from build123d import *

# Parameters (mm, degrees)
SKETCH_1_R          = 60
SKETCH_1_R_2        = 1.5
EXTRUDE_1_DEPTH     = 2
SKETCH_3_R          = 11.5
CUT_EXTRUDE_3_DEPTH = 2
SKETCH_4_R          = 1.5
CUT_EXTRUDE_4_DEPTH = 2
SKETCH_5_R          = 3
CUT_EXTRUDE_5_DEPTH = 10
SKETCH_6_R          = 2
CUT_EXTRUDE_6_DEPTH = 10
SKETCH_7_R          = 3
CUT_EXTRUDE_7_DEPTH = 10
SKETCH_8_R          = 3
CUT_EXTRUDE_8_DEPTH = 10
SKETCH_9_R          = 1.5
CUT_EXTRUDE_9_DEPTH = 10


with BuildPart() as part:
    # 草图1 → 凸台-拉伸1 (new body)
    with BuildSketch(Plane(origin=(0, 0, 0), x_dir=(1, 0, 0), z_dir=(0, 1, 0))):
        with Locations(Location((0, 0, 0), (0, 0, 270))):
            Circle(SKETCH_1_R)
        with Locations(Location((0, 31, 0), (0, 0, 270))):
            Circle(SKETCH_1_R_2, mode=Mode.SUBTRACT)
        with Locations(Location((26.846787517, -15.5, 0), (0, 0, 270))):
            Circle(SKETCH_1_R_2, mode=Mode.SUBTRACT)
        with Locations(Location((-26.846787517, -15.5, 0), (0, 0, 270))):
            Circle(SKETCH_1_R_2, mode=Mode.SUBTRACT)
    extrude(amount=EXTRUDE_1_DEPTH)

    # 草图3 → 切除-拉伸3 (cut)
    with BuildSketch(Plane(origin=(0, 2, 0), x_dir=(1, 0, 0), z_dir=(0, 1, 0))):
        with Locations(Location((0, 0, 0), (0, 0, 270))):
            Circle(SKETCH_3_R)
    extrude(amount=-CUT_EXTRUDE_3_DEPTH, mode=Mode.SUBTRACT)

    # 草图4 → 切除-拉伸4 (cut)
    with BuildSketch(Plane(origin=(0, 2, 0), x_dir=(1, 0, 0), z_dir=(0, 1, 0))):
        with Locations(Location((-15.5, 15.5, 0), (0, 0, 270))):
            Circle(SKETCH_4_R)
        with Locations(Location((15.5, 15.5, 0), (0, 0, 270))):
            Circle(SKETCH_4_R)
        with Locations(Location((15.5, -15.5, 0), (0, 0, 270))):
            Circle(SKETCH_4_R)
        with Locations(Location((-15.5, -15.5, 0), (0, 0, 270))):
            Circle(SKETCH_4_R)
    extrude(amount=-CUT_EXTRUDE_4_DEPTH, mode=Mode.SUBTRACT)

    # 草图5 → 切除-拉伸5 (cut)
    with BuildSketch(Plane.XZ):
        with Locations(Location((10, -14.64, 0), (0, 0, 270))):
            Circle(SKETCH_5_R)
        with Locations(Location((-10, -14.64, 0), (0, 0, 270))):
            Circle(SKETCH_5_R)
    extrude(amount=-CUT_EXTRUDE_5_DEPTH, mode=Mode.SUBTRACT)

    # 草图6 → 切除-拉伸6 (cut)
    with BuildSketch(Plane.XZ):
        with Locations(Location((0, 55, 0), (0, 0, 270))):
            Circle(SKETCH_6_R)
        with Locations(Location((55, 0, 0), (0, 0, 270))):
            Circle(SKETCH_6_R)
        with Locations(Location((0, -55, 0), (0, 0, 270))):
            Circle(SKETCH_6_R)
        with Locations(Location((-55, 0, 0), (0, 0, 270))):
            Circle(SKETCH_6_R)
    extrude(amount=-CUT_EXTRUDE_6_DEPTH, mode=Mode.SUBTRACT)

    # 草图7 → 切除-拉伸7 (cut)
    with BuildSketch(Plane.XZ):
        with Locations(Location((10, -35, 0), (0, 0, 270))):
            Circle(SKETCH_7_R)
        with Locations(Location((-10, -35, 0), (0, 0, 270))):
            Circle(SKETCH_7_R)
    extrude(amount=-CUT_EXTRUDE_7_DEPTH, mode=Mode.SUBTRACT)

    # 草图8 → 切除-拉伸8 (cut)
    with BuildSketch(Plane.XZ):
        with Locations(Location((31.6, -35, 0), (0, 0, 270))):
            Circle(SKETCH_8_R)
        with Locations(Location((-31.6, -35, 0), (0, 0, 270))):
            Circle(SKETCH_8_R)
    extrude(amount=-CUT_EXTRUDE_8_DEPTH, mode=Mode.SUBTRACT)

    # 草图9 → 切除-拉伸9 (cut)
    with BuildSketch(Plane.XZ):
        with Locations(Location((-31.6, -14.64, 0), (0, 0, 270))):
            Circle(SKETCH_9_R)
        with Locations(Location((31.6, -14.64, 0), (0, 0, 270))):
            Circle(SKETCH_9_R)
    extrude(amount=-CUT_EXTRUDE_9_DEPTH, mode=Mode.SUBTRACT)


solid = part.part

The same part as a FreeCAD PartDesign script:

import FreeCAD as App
import Part
import Sketcher

V = App.Vector

doc = App.newDocument("Part")
body = doc.addObject("PartDesign::Body", "Body")

# Sketch on XZ plane
sketch1 = doc.addObject("Sketcher::SketchObject", "Sketch")
body.addObject(sketch1)
sketch1.AttachmentSupport = (doc.XZ_Plane, [""])
sketch1.MapMode = "FlatFace"
sketch1.addGeometry(Part.Circle(V(0, 0, 0), V(0, 0, 1), 60), False)
sketch1.addGeometry(Part.Circle(V(0, -31, 0), V(0, 0, 1), 1.5), False)
sketch1.addGeometry(Part.Circle(V(-26.8, 15.5, 0), V(0, 0, 1), 1.5), False)
sketch1.addGeometry(Part.Circle(V(26.8, 15.5, 0), V(0, 0, 1), 1.5), False)
sketch1.addConstraint(Sketcher.Constraint("Coincident", 0, 3, -1, 1))
sketch1.addConstraint(Sketcher.Constraint("Equal", 1, 2))
sketch1.addConstraint(Sketcher.Constraint("Equal", 2, 3))
sketch1.addConstraint(Sketcher.Constraint("Symmetric", 2, 3, 3, 3, -2))
sketch1.addConstraint(Sketcher.Constraint("PointOnObject", 1, 3, -2))
sketch1.addConstraint(Sketcher.Constraint("Diameter", 0, 120.0))
sketch1.addConstraint(Sketcher.Constraint("Diameter", 1, 3.0))
sketch1.addConstraint(Sketcher.Constraint("DistanceY", 1, 3, -1, 1, 31.0))
sketch1.addConstraint(Sketcher.Constraint("DistanceY", -1, 1, 2, 3, 15.5))
sketch1.addConstraint(Sketcher.Constraint("DistanceX", 2, 3, -1, 1, 26.846788))
pad1 = doc.addObject("PartDesign::Pad", "Pad")
body.addObject(pad1)
pad1.Profile = sketch1
pad1.Length = 2
pad1.Reversed = True

# Sketch on XZ plane
sketch2 = doc.addObject("Sketcher::SketchObject", "Sketch001")
body.addObject(sketch2)
sketch2.AttachmentSupport = (doc.XZ_Plane, [""])
sketch2.MapMode = "FlatFace"
sketch2.AttachmentOffset = App.Placement(V(0, 0, -2), App.Rotation())
sketch2.addGeometry(Part.Circle(V(0, 0, 0), V(0, 0, 1), 12), False)
sketch2.addConstraint(Sketcher.Constraint("Coincident", 0, 3, -1, 1))
sketch2.addConstraint(Sketcher.Constraint("Diameter", 0, 23.0))
pocket1 = doc.addObject("PartDesign::Pocket", "Pocket")
body.addObject(pocket1)
pocket1.Profile = sketch2
pocket1.Length = 2
pocket1.Reversed = True

# Sketch on XZ plane
sketch3 = doc.addObject("Sketcher::SketchObject", "Sketch002")
body.addObject(sketch3)
sketch3.AttachmentSupport = (doc.XZ_Plane, [""])
sketch3.MapMode = "FlatFace"
sketch3.AttachmentOffset = App.Placement(V(0, 0, -2), App.Rotation())
sketch3.addGeometry(Part.Circle(V(-15.5, -15.5, 0), V(0, 0, 1), 1.5), False)
sketch3.addGeometry(Part.Circle(V(15.5, -15.5, 0), V(0, 0, 1), 1.5), False)
sketch3.addGeometry(Part.Circle(V(15.5, 15.5, 0), V(0, 0, 1), 1.5), False)
sketch3.addGeometry(Part.Circle(V(-15.5, 15.5, 0), V(0, 0, 1), 1.5), False)
sketch3.addConstraint(Sketcher.Constraint("Equal", 0, 1))
sketch3.addConstraint(Sketcher.Constraint("Equal", 1, 2))
sketch3.addConstraint(Sketcher.Constraint("Equal", 2, 3))
sketch3.addConstraint(Sketcher.Constraint("Symmetric", 0, 3, 2, 3, -1, 1))
sketch3.addConstraint(Sketcher.Constraint("Symmetric", 1, 3, 3, 3, -1, 1))
sketch3.addConstraint(Sketcher.Constraint("Symmetric", 0, 3, 1, 3, -2))
sketch3.addConstraint(Sketcher.Constraint("Diameter", 0, 3.0))
sketch3.addConstraint(Sketcher.Constraint("DistanceX", 0, 3, 1, 3, 31.0))
sketch3.addConstraint(Sketcher.Constraint("DistanceY", 1, 3, 2, 3, 31.0))
pocket2 = doc.addObject("PartDesign::Pocket", "Pocket001")
body.addObject(pocket2)
pocket2.Profile = sketch3
pocket2.Length = 2
pocket2.Reversed = True

# Sketch on XZ plane
sketch4 = doc.addObject("Sketcher::SketchObject", "Sketch003")
body.addObject(sketch4)
sketch4.AttachmentSupport = (doc.XZ_Plane, [""])
sketch4.MapMode = "FlatFace"
sketch4.addGeometry(Part.Circle(V(10, -14.6, 0), V(0, 0, 1), 3), False)
sketch4.addGeometry(Part.Circle(V(-10, -14.6, 0), V(0, 0, 1), 3), False)
sketch4.addConstraint(Sketcher.Constraint("Equal", 0, 1))
sketch4.addConstraint(Sketcher.Constraint("Symmetric", 0, 3, 1, 3, -2))
sketch4.addConstraint(Sketcher.Constraint("Diameter", 0, 6.0))
sketch4.addConstraint(Sketcher.Constraint("DistanceX", -1, 1, 0, 3, 10.0))
sketch4.addConstraint(Sketcher.Constraint("DistanceY", 0, 3, -1, 1, 14.64))
pocket3 = doc.addObject("PartDesign::Pocket", "Pocket002")
body.addObject(pocket3)
pocket3.Profile = sketch4
pocket3.Length = 10

# Sketch on XZ plane
sketch5 = doc.addObject("Sketcher::SketchObject", "Sketch004")
body.addObject(sketch5)
sketch5.AttachmentSupport = (doc.XZ_Plane, [""])
sketch5.MapMode = "FlatFace"
sketch5.addGeometry(Part.Circle(V(0, 55, 0), V(0, 0, 1), 2), False)
sketch5.addGeometry(Part.Circle(V(55, 0, 0), V(0, 0, 1), 2), False)
sketch5.addGeometry(Part.Circle(V(0, -55, 0), V(0, 0, 1), 2), False)
sketch5.addGeometry(Part.Circle(V(-55, 0, 0), V(0, 0, 1), 2), False)
sketch5.addConstraint(Sketcher.Constraint("Equal", 0, 1))
sketch5.addConstraint(Sketcher.Constraint("Equal", 1, 2))
sketch5.addConstraint(Sketcher.Constraint("Equal", 2, 3))
sketch5.addConstraint(Sketcher.Constraint("Symmetric", 0, 3, 2, 3, -1, 1))
sketch5.addConstraint(Sketcher.Constraint("Symmetric", 1, 3, 3, 3, -1, 1))
sketch5.addConstraint(Sketcher.Constraint("PointOnObject", 0, 3, -2))
sketch5.addConstraint(Sketcher.Constraint("PointOnObject", 1, 3, -1))
sketch5.addConstraint(Sketcher.Constraint("Diameter", 0, 4.0))
sketch5.addConstraint(Sketcher.Constraint("DistanceY", -1, 1, 0, 3, 55.0))
sketch5.addConstraint(Sketcher.Constraint("DistanceX", -1, 1, 1, 3, 55.0))
pocket4 = doc.addObject("PartDesign::Pocket", "Pocket003")
body.addObject(pocket4)
pocket4.Profile = sketch5
pocket4.Length = 10

# Sketch on XZ plane
sketch6 = doc.addObject("Sketcher::SketchObject", "Sketch005")
body.addObject(sketch6)
sketch6.AttachmentSupport = (doc.XZ_Plane, [""])
sketch6.MapMode = "FlatFace"
sketch6.addGeometry(Part.Circle(V(10, -35, 0), V(0, 0, 1), 3), False)
sketch6.addGeometry(Part.Circle(V(-10, -35, 0), V(0, 0, 1), 3), False)
sketch6.addConstraint(Sketcher.Constraint("Equal", 0, 1))
sketch6.addConstraint(Sketcher.Constraint("Symmetric", 0, 3, 1, 3, -2))
sketch6.addConstraint(Sketcher.Constraint("Diameter", 0, 6.0))
sketch6.addConstraint(Sketcher.Constraint("DistanceX", -1, 1, 0, 3, 10.0))
sketch6.addConstraint(Sketcher.Constraint("DistanceY", 0, 3, -1, 1, 35.0))
pocket5 = doc.addObject("PartDesign::Pocket", "Pocket004")
body.addObject(pocket5)
pocket5.Profile = sketch6
pocket5.Length = 10

# Sketch on XZ plane
sketch7 = doc.addObject("Sketcher::SketchObject", "Sketch006")
body.addObject(sketch7)
sketch7.AttachmentSupport = (doc.XZ_Plane, [""])
sketch7.MapMode = "FlatFace"
sketch7.addGeometry(Part.Circle(V(31.6, -35, 0), V(0, 0, 1), 3), False)
sketch7.addGeometry(Part.Circle(V(-31.6, -35, 0), V(0, 0, 1), 3), False)
sketch7.addConstraint(Sketcher.Constraint("Equal", 0, 1))
sketch7.addConstraint(Sketcher.Constraint("Symmetric", 0, 3, 1, 3, -2))
sketch7.addConstraint(Sketcher.Constraint("Diameter", 0, 6.0))
sketch7.addConstraint(Sketcher.Constraint("DistanceY", 0, 3, -1, 1, 35.0))
sketch7.addConstraint(Sketcher.Constraint("DistanceX", -1, 1, 0, 3, 31.6))
pocket6 = doc.addObject("PartDesign::Pocket", "Pocket005")
body.addObject(pocket6)
pocket6.Profile = sketch7
pocket6.Length = 10

# Sketch on XZ plane
sketch8 = doc.addObject("Sketcher::SketchObject", "Sketch007")
body.addObject(sketch8)
sketch8.AttachmentSupport = (doc.XZ_Plane, [""])
sketch8.MapMode = "FlatFace"
sketch8.addGeometry(Part.Circle(V(-31.6, -14.6, 0), V(0, 0, 1), 1.5), False)
sketch8.addGeometry(Part.Circle(V(31.6, -14.6, 0), V(0, 0, 1), 1.5), False)
sketch8.addConstraint(Sketcher.Constraint("Equal", 0, 1))
sketch8.addConstraint(Sketcher.Constraint("Symmetric", 0, 3, 1, 3, -2))
sketch8.addConstraint(Sketcher.Constraint("Diameter", 0, 3.0))
sketch8.addConstraint(Sketcher.Constraint("DistanceX", 0, 3, -1, 1, 31.6))
sketch8.addConstraint(Sketcher.Constraint("DistanceY", 0, 3, -1, 1, 14.64))
pocket7 = doc.addObject("PartDesign::Pocket", "Pocket006")
body.addObject(pocket7)
pocket7.Profile = sketch8
pocket7.Length = 10

doc.recompute()
